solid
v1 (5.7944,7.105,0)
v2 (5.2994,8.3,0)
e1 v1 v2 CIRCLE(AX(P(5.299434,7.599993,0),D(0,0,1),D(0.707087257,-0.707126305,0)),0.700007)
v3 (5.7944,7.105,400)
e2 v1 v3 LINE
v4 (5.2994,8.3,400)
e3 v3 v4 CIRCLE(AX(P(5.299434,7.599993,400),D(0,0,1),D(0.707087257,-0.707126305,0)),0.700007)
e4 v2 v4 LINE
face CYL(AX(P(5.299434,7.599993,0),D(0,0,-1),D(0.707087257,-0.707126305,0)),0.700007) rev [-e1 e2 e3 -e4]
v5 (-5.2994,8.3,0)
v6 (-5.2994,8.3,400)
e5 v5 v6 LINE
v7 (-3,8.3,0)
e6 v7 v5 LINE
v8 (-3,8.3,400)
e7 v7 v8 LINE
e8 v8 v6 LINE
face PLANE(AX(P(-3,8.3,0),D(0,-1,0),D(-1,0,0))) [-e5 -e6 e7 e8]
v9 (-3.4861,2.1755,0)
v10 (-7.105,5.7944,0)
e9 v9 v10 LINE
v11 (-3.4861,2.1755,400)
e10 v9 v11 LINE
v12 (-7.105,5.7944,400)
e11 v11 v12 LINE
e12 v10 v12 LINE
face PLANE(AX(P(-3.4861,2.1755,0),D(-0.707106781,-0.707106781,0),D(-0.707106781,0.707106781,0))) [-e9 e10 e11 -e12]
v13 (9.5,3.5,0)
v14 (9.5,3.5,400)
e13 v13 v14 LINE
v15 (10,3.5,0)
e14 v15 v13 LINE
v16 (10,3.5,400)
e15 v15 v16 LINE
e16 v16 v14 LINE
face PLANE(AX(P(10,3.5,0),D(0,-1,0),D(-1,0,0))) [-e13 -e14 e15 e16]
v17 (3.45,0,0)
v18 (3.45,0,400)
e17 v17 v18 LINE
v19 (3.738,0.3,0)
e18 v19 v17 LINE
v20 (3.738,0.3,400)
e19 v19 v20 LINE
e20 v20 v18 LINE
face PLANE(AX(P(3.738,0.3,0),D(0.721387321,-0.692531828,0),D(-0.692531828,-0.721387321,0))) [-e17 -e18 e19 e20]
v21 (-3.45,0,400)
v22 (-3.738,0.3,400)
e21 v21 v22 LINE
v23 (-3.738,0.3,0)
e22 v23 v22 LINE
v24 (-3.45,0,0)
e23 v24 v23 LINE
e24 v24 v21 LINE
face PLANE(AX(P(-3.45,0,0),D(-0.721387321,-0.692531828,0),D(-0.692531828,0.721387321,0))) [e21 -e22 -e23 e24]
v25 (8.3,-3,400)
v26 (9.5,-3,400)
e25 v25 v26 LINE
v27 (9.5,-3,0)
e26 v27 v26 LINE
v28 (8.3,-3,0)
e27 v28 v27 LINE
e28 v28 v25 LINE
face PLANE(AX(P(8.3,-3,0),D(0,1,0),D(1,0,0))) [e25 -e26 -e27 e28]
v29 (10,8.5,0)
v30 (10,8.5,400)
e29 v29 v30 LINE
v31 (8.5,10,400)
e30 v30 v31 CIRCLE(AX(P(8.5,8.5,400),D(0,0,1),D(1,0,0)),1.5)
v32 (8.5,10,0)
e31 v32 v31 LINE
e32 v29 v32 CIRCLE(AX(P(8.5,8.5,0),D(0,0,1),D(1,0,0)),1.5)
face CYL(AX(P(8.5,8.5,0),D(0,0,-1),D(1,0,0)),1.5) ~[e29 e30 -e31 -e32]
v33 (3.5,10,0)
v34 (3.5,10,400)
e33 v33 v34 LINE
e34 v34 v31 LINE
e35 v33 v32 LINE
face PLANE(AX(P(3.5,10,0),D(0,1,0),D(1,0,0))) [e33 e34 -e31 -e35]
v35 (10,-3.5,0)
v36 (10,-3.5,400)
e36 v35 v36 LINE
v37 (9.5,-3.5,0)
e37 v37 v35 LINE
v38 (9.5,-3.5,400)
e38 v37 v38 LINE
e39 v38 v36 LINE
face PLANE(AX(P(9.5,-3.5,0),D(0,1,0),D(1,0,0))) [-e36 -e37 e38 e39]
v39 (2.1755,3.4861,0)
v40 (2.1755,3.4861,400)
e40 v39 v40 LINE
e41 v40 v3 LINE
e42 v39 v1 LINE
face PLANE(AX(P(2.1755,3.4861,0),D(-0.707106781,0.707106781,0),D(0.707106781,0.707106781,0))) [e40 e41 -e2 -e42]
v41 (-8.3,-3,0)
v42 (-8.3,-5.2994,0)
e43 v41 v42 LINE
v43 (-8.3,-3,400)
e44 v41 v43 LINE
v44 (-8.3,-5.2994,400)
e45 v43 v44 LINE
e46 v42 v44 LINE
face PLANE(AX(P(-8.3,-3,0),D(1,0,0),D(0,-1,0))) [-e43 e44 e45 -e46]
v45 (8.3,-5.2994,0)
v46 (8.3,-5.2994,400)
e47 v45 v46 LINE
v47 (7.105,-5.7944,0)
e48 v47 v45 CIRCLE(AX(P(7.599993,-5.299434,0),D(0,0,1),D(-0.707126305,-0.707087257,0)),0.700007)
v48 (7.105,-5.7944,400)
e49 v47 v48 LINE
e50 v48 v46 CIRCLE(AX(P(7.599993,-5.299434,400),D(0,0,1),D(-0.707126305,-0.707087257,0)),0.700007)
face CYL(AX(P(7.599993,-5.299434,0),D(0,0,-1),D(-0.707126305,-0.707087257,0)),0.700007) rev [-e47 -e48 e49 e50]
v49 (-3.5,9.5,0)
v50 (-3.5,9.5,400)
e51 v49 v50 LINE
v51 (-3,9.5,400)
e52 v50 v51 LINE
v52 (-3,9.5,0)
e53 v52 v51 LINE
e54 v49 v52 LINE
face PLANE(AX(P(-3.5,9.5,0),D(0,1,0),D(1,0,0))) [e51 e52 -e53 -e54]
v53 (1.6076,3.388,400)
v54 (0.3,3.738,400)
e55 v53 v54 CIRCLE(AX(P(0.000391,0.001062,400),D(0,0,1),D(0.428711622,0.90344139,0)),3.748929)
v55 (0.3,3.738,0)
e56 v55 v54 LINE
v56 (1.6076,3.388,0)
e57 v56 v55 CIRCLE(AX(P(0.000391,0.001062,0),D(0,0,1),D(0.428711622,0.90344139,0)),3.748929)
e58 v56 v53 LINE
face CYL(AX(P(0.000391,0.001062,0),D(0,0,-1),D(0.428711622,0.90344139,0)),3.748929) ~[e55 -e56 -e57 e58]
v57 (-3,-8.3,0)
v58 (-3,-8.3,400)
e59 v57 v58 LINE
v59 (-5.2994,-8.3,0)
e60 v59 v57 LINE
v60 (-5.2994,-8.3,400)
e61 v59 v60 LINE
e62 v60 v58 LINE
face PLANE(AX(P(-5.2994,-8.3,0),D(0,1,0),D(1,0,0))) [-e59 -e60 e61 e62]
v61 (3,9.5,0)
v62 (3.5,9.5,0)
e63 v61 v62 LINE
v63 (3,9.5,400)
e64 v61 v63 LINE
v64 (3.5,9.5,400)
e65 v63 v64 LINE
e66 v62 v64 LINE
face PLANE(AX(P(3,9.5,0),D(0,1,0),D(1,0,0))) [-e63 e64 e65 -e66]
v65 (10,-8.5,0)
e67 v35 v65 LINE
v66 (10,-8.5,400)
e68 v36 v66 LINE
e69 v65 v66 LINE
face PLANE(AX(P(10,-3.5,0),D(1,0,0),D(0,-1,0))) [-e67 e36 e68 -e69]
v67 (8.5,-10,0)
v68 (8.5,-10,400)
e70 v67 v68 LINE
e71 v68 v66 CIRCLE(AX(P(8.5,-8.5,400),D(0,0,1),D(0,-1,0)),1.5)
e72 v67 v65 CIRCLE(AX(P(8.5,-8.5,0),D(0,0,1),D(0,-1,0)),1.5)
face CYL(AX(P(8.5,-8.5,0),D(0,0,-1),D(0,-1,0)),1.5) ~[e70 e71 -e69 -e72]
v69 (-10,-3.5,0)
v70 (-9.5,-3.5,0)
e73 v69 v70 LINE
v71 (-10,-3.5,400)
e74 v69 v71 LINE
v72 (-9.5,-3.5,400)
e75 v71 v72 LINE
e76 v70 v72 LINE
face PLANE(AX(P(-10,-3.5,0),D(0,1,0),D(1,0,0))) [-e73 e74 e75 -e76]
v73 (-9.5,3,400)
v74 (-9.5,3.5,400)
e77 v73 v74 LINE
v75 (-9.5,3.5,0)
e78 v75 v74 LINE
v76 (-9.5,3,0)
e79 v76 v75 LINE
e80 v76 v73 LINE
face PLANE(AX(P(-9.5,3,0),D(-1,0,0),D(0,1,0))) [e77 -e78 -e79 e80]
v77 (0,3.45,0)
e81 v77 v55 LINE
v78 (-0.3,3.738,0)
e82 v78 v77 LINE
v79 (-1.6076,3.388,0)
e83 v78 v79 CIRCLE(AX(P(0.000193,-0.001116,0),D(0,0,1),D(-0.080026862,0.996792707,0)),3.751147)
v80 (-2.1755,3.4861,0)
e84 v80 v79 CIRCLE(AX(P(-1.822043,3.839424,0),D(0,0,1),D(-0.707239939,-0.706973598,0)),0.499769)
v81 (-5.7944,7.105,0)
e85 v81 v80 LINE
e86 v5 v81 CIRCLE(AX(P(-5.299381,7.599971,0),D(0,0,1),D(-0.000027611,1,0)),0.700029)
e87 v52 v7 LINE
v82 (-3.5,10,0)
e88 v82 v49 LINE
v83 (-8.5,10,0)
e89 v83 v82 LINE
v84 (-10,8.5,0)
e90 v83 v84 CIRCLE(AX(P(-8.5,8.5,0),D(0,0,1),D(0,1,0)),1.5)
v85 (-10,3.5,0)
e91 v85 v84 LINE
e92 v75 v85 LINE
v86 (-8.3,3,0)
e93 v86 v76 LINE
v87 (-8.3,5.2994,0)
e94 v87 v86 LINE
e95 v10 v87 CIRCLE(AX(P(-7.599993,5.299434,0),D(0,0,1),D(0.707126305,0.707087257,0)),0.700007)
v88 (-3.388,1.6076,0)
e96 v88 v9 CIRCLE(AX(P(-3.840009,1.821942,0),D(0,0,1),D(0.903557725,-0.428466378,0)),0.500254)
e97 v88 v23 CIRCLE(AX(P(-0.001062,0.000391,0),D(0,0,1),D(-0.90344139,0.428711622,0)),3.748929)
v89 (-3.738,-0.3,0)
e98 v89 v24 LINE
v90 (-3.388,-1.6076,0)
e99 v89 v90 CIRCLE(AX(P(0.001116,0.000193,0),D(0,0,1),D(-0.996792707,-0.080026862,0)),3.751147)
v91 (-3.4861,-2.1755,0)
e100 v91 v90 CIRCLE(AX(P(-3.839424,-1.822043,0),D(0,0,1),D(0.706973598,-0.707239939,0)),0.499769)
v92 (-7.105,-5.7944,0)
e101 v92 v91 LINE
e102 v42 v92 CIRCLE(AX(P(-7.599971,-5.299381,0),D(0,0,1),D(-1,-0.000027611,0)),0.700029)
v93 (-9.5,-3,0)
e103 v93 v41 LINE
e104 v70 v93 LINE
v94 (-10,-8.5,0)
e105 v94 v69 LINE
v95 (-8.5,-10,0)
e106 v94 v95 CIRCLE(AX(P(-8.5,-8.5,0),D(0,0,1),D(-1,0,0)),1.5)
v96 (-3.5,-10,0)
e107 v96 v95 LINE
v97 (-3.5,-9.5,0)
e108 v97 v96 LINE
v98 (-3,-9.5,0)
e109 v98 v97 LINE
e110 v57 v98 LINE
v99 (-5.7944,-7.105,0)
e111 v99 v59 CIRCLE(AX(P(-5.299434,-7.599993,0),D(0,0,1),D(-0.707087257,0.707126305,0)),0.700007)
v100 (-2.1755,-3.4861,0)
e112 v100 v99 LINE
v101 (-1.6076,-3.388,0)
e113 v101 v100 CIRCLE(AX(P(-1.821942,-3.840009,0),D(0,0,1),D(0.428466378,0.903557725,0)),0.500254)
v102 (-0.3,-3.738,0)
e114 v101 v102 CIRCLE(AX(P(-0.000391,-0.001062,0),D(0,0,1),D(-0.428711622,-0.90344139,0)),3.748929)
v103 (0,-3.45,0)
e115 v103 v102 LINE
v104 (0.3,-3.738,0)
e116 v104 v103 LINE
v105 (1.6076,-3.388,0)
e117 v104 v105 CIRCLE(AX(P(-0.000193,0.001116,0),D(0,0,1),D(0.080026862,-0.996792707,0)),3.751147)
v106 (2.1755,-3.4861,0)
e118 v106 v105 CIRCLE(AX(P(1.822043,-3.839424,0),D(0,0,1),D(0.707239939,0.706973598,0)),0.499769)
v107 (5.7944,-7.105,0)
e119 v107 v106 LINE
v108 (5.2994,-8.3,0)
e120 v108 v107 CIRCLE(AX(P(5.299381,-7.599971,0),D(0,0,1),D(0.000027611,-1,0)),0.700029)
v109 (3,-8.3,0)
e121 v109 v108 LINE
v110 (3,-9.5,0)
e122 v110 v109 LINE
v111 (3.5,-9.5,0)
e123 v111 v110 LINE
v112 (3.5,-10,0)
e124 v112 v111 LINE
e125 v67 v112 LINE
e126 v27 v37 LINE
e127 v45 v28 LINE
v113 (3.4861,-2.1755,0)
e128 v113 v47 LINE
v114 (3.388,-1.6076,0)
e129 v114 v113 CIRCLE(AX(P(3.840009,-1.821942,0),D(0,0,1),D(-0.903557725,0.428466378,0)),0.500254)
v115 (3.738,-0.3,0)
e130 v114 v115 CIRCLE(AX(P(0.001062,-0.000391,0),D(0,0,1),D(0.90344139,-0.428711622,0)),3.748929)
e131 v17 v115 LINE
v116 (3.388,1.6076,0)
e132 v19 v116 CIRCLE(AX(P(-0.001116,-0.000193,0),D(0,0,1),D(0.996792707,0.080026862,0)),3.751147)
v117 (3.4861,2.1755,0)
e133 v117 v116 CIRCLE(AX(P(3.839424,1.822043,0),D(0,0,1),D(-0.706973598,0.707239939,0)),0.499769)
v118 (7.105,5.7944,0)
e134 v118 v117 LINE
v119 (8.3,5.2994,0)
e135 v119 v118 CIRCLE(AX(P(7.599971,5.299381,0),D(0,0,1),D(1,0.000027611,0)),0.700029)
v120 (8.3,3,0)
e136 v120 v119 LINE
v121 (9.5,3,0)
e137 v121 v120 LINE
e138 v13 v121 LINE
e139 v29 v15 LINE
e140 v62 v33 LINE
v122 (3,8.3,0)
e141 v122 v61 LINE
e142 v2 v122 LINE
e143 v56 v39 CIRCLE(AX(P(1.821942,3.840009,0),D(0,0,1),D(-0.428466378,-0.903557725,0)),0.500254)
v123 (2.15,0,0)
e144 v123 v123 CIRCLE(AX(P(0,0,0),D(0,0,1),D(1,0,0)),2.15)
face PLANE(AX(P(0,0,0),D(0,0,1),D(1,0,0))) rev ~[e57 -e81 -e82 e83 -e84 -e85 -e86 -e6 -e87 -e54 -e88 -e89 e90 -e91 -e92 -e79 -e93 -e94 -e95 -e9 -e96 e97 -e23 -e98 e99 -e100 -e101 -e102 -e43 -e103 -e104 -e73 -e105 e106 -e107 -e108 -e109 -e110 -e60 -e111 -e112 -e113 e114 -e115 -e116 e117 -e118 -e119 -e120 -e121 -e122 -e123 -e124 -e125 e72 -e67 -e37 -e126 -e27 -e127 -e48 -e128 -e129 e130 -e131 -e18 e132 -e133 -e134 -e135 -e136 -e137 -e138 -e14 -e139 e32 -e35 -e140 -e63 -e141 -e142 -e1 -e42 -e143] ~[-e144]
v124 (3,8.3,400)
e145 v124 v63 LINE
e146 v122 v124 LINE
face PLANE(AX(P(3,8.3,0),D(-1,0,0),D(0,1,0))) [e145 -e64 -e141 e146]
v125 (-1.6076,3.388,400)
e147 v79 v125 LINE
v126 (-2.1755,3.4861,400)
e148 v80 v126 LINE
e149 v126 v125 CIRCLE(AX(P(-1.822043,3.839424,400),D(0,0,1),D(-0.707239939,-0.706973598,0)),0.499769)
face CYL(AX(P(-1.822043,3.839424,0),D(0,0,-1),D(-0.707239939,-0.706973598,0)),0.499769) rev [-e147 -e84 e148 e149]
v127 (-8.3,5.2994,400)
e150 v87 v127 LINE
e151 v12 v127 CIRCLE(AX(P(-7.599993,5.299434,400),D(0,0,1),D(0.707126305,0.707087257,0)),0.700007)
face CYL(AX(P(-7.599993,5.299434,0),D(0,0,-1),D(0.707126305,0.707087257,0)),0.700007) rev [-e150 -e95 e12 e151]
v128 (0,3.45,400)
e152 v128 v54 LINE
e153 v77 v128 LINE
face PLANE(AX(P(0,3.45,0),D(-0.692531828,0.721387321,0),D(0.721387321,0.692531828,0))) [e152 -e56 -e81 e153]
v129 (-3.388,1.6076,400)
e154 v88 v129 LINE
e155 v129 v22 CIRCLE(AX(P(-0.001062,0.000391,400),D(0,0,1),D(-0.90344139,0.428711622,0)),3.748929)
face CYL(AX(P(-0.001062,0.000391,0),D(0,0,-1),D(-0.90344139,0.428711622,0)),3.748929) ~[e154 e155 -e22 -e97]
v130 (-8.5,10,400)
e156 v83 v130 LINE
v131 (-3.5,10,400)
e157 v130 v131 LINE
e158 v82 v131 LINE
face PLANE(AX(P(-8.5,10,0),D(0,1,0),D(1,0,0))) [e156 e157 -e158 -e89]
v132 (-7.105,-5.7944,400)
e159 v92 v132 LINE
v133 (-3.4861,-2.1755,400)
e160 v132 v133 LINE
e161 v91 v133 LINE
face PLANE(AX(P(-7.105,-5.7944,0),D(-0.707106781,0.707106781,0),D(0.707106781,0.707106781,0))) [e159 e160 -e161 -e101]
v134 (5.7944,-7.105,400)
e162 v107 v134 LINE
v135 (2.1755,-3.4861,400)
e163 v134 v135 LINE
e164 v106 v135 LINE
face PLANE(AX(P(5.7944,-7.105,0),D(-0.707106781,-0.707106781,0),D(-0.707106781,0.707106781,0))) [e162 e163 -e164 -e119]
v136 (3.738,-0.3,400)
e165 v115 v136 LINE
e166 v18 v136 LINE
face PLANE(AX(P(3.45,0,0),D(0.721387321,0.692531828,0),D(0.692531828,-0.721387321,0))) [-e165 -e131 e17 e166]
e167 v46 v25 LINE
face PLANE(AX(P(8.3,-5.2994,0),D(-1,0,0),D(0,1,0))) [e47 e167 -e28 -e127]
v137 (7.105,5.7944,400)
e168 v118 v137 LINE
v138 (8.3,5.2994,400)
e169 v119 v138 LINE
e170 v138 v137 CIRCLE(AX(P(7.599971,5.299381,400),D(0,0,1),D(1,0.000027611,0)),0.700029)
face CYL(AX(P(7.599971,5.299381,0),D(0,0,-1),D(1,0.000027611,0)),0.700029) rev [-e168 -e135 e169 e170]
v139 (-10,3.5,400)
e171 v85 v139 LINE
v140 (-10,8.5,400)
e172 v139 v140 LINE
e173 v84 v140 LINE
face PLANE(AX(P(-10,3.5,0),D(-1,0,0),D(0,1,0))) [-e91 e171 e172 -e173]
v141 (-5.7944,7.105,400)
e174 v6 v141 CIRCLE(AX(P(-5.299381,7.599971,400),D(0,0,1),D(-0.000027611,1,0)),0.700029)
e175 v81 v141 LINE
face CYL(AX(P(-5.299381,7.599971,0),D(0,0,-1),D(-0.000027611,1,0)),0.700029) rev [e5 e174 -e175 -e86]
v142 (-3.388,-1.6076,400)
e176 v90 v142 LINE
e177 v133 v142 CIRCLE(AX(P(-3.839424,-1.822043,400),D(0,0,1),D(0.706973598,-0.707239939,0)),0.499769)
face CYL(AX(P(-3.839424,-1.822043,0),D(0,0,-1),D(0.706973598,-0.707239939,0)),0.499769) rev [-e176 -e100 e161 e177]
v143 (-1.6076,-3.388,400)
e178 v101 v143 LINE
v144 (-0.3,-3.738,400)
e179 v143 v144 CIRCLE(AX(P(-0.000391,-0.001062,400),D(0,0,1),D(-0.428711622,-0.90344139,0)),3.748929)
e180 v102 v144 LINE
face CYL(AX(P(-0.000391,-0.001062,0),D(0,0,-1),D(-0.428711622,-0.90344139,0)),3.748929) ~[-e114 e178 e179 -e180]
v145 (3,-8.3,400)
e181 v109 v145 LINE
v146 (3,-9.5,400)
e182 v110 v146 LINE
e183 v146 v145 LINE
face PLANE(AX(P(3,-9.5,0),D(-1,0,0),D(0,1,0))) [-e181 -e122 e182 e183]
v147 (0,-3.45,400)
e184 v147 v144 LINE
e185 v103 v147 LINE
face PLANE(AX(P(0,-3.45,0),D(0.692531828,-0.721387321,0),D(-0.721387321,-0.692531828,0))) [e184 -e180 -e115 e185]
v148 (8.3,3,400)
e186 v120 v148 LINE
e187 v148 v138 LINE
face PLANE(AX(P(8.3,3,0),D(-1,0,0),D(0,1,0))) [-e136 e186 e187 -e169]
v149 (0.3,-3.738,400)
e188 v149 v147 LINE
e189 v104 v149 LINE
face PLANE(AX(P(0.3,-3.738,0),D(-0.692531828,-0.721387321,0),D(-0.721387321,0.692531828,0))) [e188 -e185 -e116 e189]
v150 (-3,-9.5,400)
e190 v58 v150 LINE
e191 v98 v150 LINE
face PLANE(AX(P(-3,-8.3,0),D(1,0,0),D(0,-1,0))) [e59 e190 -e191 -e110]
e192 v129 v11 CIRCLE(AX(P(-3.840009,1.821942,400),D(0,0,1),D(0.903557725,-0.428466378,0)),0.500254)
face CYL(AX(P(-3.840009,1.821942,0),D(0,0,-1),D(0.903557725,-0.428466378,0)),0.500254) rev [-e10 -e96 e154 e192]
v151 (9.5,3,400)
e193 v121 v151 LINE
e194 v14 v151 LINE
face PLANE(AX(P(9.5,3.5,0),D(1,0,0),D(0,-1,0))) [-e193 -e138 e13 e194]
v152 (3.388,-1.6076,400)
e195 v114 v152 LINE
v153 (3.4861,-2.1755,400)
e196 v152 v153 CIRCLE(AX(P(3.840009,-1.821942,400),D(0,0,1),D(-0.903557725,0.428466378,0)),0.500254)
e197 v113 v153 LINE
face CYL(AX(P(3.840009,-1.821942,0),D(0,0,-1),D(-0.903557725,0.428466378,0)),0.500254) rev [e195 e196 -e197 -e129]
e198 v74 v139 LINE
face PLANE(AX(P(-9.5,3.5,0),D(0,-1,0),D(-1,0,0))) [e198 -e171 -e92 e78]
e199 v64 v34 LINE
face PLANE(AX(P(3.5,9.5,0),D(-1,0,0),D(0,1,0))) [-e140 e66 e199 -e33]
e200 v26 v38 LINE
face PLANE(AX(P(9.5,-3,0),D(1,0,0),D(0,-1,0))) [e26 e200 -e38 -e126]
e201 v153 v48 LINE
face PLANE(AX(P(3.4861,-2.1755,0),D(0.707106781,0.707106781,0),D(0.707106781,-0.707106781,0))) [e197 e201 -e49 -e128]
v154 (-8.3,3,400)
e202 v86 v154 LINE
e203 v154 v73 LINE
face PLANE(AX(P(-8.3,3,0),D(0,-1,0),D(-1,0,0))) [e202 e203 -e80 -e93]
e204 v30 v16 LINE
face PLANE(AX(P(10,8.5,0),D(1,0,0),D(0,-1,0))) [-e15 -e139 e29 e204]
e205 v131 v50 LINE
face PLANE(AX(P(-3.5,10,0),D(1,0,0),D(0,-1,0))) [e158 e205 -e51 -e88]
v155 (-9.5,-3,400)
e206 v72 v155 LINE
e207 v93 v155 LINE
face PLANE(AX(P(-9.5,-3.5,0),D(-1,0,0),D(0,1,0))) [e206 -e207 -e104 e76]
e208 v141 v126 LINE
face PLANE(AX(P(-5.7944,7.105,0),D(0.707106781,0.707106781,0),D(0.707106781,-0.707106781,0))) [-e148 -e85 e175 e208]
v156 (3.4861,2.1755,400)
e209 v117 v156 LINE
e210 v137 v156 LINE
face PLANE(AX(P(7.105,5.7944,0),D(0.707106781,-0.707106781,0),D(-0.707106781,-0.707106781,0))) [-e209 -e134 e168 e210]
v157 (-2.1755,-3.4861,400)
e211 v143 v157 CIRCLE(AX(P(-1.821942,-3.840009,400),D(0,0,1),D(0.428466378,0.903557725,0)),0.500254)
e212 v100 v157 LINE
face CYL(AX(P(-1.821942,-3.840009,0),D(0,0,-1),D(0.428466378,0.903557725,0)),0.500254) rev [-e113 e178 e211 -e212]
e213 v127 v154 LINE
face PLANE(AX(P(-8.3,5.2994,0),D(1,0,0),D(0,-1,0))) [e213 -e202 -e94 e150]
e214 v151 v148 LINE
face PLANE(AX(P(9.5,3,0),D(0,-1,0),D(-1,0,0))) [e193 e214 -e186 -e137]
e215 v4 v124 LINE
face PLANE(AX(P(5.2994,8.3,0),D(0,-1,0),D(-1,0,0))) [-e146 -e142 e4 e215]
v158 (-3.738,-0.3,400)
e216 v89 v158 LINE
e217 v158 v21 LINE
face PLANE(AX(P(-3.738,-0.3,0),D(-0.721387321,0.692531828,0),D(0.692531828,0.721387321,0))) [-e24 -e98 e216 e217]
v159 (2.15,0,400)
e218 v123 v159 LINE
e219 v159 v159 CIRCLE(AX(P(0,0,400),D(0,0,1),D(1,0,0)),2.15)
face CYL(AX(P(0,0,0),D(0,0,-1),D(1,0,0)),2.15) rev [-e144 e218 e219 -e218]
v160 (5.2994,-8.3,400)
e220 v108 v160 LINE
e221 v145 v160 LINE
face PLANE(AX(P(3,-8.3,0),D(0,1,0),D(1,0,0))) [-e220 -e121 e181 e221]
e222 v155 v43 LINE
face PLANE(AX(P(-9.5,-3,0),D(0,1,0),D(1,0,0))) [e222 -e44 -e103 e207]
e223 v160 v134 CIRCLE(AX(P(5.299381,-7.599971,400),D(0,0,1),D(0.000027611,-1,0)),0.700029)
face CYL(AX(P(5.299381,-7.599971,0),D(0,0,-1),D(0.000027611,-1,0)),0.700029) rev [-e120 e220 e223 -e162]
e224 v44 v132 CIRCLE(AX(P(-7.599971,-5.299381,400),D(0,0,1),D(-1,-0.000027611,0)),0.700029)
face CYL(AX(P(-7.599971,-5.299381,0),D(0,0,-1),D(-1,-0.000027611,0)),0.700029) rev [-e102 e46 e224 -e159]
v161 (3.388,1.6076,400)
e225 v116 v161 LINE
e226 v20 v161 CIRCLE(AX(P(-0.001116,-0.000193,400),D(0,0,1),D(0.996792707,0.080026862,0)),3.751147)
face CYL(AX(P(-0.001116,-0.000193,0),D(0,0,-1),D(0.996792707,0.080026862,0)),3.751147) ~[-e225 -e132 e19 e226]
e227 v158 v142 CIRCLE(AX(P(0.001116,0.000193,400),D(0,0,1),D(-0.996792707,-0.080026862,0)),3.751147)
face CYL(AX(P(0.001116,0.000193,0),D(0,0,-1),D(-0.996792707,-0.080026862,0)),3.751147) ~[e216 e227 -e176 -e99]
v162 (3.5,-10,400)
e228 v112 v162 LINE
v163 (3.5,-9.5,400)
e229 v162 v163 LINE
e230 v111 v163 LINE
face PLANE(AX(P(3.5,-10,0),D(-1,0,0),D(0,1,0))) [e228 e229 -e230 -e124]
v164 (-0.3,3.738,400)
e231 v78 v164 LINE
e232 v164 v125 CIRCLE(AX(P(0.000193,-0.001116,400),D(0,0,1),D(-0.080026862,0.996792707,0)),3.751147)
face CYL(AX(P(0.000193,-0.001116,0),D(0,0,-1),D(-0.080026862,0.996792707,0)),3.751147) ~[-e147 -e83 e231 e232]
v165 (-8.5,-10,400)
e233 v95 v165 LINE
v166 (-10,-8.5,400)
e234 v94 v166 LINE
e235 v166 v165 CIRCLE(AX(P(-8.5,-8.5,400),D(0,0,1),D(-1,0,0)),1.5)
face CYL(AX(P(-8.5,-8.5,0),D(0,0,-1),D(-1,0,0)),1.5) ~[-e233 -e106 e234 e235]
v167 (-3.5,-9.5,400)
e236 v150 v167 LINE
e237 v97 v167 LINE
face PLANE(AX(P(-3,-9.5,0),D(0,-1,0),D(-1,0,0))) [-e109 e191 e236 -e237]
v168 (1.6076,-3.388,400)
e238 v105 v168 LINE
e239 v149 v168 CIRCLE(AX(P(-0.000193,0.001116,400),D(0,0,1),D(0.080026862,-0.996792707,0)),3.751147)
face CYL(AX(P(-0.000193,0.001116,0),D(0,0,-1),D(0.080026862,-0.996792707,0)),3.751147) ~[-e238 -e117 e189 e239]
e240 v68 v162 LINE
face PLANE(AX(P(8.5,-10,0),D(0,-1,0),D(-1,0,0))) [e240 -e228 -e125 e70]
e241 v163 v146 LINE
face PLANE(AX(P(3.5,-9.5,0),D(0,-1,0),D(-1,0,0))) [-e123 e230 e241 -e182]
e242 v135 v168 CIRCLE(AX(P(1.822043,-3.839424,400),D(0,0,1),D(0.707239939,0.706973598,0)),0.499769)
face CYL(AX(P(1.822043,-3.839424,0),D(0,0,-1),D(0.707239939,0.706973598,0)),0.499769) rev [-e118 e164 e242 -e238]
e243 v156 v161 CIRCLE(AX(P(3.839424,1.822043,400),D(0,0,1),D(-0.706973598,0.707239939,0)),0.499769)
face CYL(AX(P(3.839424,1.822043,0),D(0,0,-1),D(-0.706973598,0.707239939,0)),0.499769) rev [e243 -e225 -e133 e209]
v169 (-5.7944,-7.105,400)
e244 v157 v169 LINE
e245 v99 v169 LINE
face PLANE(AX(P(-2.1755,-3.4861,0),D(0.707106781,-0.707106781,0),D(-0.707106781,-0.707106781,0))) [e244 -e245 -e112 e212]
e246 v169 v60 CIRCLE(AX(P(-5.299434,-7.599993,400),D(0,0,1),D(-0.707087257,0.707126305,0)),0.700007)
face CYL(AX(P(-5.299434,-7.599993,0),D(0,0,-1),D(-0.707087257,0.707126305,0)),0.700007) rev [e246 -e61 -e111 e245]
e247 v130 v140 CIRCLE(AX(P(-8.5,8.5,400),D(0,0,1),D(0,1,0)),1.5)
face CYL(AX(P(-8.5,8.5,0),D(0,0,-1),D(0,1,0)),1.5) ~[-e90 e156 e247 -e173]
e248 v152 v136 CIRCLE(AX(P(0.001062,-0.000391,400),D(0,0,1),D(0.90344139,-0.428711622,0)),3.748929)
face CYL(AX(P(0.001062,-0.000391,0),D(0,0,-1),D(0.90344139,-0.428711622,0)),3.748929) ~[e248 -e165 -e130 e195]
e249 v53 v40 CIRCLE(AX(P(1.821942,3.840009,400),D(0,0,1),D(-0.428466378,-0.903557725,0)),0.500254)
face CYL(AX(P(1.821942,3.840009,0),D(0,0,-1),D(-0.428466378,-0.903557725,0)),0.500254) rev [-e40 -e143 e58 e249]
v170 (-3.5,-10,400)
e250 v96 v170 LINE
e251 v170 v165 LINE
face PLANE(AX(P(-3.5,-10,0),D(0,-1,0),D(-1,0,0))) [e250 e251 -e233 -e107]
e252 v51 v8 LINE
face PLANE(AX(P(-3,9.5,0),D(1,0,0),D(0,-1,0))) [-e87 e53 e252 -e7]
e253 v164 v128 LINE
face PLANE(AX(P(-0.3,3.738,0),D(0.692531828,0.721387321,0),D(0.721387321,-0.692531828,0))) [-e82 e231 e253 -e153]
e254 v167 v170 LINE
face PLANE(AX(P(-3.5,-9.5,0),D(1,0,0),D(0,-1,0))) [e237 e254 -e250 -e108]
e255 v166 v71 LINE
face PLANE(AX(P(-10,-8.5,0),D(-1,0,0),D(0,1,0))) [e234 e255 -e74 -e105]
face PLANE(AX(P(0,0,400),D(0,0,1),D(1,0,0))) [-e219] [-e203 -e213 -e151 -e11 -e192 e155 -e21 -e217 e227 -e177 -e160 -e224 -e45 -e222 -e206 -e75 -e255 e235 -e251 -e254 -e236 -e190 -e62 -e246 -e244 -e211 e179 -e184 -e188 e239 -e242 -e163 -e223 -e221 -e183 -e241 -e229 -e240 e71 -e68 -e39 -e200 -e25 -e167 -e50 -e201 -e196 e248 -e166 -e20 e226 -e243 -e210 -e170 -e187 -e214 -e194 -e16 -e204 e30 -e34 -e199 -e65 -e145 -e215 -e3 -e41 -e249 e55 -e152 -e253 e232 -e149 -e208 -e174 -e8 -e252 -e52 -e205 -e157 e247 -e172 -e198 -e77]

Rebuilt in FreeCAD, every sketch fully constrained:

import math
import FreeCAD as App
import Part
import Sketcher

V = App.Vector
Q = App.Units.Quantity

doc = App.newDocument("Part")
params = doc.addObject("Spreadsheet::Sheet", "Params")
for row, (alias, value) in enumerate([
    ("sketch1_diameter", "4.3 mm"),
    ("sketch1_radius", "0.7 mm"),
    ("sketch1_radius2", "0.5 mm"),
    ("sketch1_radius3", "0.5 mm"),
    ("sketch1_radius4", "0.7 mm"),
    ("pad1_length", "400 mm"),
], start=1):
    params.set(f"A{row}", alias)
    params.set(f"B{row}", "=" + value)
    params.setAlias(f"B{row}", alias)

body = doc.addObject("PartDesign::Body", "Body")

sketch1 = body.newObject("Sketcher::SketchObject", "Sketch")
sketch1.AttachmentSupport = (doc.getObject("XY_Plane"), [""])
sketch1.MapMode = "FlatFace"
sketch1.addGeometry([
    Part.LineSegment(V(-3.5, -10, 0), V(-3.5, -9.5, 0)),
    Part.LineSegment(V(-3.5, -9.5, 0), V(-3, -9.5, 0)),
    Part.LineSegment(V(-3, -9.5, 0), V(-3, -8.3, 0)),
    Part.LineSegment(V(-3, -8.3, 0), V(-5.2994, -8.3, 0)),
    Part.ArcOfCircle(Part.Circle(V(-5.2994, -7.6, 0), V(0, 0, 1), 0.700036), math.radians(135), math.radians(270)),
    Part.LineSegment(V(-5.7944, -7.105, 0), V(-2.1755, -3.4861, 0)),
    Part.ArcOfCircle(Part.Circle(V(-1.8219, -3.8397, 0), V(0, 0, 1), 0.499957), math.radians(64.618937), math.radians(135)),
    Part.ArcOfCircle(Part.Circle(V(-0.000391, -0.001062, 0), V(0, 0, 1), 3.748929), math.radians(-115.385824), math.radians(-94.583891)),
    Part.LineSegment(V(-0.3, -3.738, 0), V(0, -3.45, 0)),
    Part.LineSegment(V(0, -3.45, 0), V(0.3, -3.738, 0)),
    Part.ArcOfCircle(Part.Circle(V(-0.000193, 0.001116, 0), V(0, 0, 1), 3.751147), math.radians(-85.40989), math.radians(-64.620395)),
    Part.ArcOfCircle(Part.Circle(V(1.8219, -3.8397, 0), V(0, 0, 1), 0.500066), math.radians(45), math.radians(115.381063)),
    Part.LineSegment(V(2.1755, -3.4861, 0), V(5.7944, -7.105, 0)),
    Part.ArcOfCircle(Part.Circle(V(5.2994, -7.6, 0), V(0, 0, 1), 0.7), math.radians(-90), math.radians(45)),
    Part.LineSegment(V(5.2994, -8.3, 0), V(3, -8.3, 0)),
    Part.LineSegment(V(3, -8.3, 0), V(3, -9.5, 0)),
    Part.LineSegment(V(3, -9.5, 0), V(3.5, -9.5, 0)),
    Part.LineSegment(V(3.5, -9.5, 0), V(3.5, -10, 0)),
    Part.LineSegment(V(3.5, -10, 0), V(8.5, -10, 0)),
    Part.ArcOfCircle(Part.Circle(V(8.5, -8.5, 0), V(0, 0, 1), 1.5), math.radians(-90), math.radians(0)),
    Part.LineSegment(V(10, -8.5, 0), V(10, -3.5, 0)),
    Part.LineSegment(V(10, -3.5, 0), V(9.5, -3.5, 0)),
    Part.LineSegment(V(9.5, -3.5, 0), V(9.5, -3, 0)),
    Part.LineSegment(V(9.5, -3, 0), V(8.3, -3, 0)),
    Part.LineSegment(V(8.3, -3, 0), V(8.3, -5.2994, 0)),
    Part.ArcOfCircle(Part.Circle(V(7.6, -5.2994, 0), V(0, 0, 1), 0.700036), math.radians(-135), math.radians(0)),
    Part.LineSegment(V(7.105, -5.7944, 0), V(3.4861, -2.1755, 0)),
    Part.ArcOfCircle(Part.Circle(V(3.8397, -1.8219, 0), V(0, 0, 1), 0.499957), math.radians(154.618937), math.radians(225)),
    Part.ArcOfCircle(Part.Circle(V(0.001062, -0.000391, 0), V(0, 0, 1), 3.748929), math.radians(-25.385824), math.radians(-4.583891)),
    Part.LineSegment(V(3.738, -0.3, 0), V(3.45, 0, 0)),
    Part.LineSegment(V(3.45, 0, 0), V(3.738, 0.3, 0)),
    Part.ArcOfCircle(Part.Circle(V(-0.001116, -0.000193, 0), V(0, 0, 1), 3.751147), math.radians(4.59011), math.radians(25.379605)),
    Part.ArcOfCircle(Part.Circle(V(3.8397, 1.8219, 0), V(0, 0, 1), 0.500066), math.radians(135), math.radians(205.381063)),
    Part.LineSegment(V(3.4861, 2.1755, 0), V(7.105, 5.7944, 0)),
    Part.ArcOfCircle(Part.Circle(V(7.6, 5.2994, 0), V(0, 0, 1), 0.7), math.radians(0), math.radians(135)),
    Part.LineSegment(V(8.3, 5.2994, 0), V(8.3, 3, 0)),
    Part.LineSegment(V(8.3, 3, 0), V(9.5, 3, 0)),
    Part.LineSegment(V(9.5, 3, 0), V(9.5, 3.5, 0)),
    Part.LineSegment(V(9.5, 3.5, 0), V(10, 3.5, 0)),
    Part.LineSegment(V(10, 3.5, 0), V(10, 8.5, 0)),
    Part.ArcOfCircle(Part.Circle(V(8.5, 8.5, 0), V(0, 0, 1), 1.5), math.radians(0), math.radians(90)),
    Part.LineSegment(V(8.5, 10, 0), V(3.5, 10, 0)),
    Part.LineSegment(V(3.5, 10, 0), V(3.5, 9.5, 0)),
    Part.LineSegment(V(3.5, 9.5, 0), V(3, 9.5, 0)),
    Part.LineSegment(V(3, 9.5, 0), V(3, 8.3, 0)),
    Part.LineSegment(V(3, 8.3, 0), V(5.2994, 8.3, 0)),
    Part.ArcOfCircle(Part.Circle(V(5.2994, 7.6, 0), V(0, 0, 1), 0.700036), math.radians(-45), math.radians(90)),
    Part.LineSegment(V(5.7944, 7.105, 0), V(2.1755, 3.4861, 0)),
    Part.ArcOfCircle(Part.Circle(V(1.8219, 3.8397, 0), V(0, 0, 1), 0.499957), math.radians(-115.381063), math.radians(-45)),
    Part.ArcOfCircle(Part.Circle(V(0.000391, 0.001062, 0), V(0, 0, 1), 3.748929), math.radians(64.614176), math.radians(85.416109)),
    Part.LineSegment(V(0.3, 3.738, 0), V(0, 3.45, 0)),
    Part.LineSegment(V(0, 3.45, 0), V(-0.3, 3.738, 0)),
    Part.ArcOfCircle(Part.Circle(V(0.000193, -0.001116, 0), V(0, 0, 1), 3.751147), math.radians(94.59011), math.radians(115.379605)),
    Part.ArcOfCircle(Part.Circle(V(-1.8219, 3.8397, 0), V(0, 0, 1), 0.500066), math.radians(-135), math.radians(-64.618937)),
    Part.LineSegment(V(-2.1755, 3.4861, 0), V(-5.7944, 7.105, 0)),
    Part.ArcOfCircle(Part.Circle(V(-5.2994, 7.6, 0), V(0, 0, 1), 0.7), math.radians(90), math.radians(225)),
    Part.LineSegment(V(-5.2994, 8.3, 0), V(-3, 8.3, 0)),
    Part.LineSegment(V(-3, 8.3, 0), V(-3, 9.5, 0)),
    Part.LineSegment(V(-3, 9.5, 0), V(-3.5, 9.5, 0)),
    Part.LineSegment(V(-3.5, 9.5, 0), V(-3.5, 10, 0)),
    Part.LineSegment(V(-3.5, 10, 0), V(-8.5, 10, 0)),
    Part.ArcOfCircle(Part.Circle(V(-8.5, 8.5, 0), V(0, 0, 1), 1.5), math.radians(90), math.radians(180)),
    Part.LineSegment(V(-10, 8.5, 0), V(-10, 3.5, 0)),
    Part.LineSegment(V(-10, 3.5, 0), V(-9.5, 3.5, 0)),
    Part.LineSegment(V(-9.5, 3.5, 0), V(-9.5, 3, 0)),
    Part.LineSegment(V(-9.5, 3, 0), V(-8.3, 3, 0)),
    Part.LineSegment(V(-8.3, 3, 0), V(-8.3, 5.2994, 0)),
    Part.ArcOfCircle(Part.Circle(V(-7.6, 5.2994, 0), V(0, 0, 1), 0.700036), math.radians(45), math.radians(180)),
    Part.LineSegment(V(-7.105, 5.7944, 0), V(-3.4861, 2.1755, 0)),
    Part.ArcOfCircle(Part.Circle(V(-3.8397, 1.8219, 0), V(0, 0, 1), 0.499957), math.radians(-25.381063), math.radians(45)),
    Part.ArcOfCircle(Part.Circle(V(-0.001062, 0.000391, 0), V(0, 0, 1), 3.748929), math.radians(154.614176), math.radians(175.416109)),
    Part.LineSegment(V(-3.738, 0.3, 0), V(-3.45, 0, 0)),
    Part.LineSegment(V(-3.45, 0, 0), V(-3.738, -0.3, 0)),
    Part.ArcOfCircle(Part.Circle(V(0.001116, 0.000193, 0), V(0, 0, 1), 3.751147), math.radians(-175.40989), math.radians(-154.620395)),
    Part.ArcOfCircle(Part.Circle(V(-3.8397, -1.8219, 0), V(0, 0, 1), 0.500066), math.radians(-45), math.radians(25.381063)),
    Part.LineSegment(V(-3.4861, -2.1755, 0), V(-7.105, -5.7944, 0)),
    Part.ArcOfCircle(Part.Circle(V(-7.6, -5.2994, 0), V(0, 0, 1), 0.7), math.radians(180), math.radians(315)),
    Part.LineSegment(V(-8.3, -5.2994, 0), V(-8.3, -3, 0)),
    Part.LineSegment(V(-8.3, -3, 0), V(-9.5, -3, 0)),
    Part.LineSegment(V(-9.5, -3, 0), V(-9.5, -3.5, 0)),
    Part.LineSegment(V(-9.5, -3.5, 0), V(-10, -3.5, 0)),
    Part.LineSegment(V(-10, -3.5, 0), V(-10, -8.5, 0)),
    Part.ArcOfCircle(Part.Circle(V(-8.5, -8.5, 0), V(0, 0, 1), 1.5), math.radians(180), math.radians(270)),
    Part.LineSegment(V(-8.5, -10, 0), V(-3.5, -10, 0)),
    Part.Circle(V(0, 0, 0), V(0, 0, 1), 2.15),
], False)
sketch1.addConstraint([
    Sketcher.Constraint("Coincident", 0, 2, 1, 1),
    Sketcher.Constraint("Coincident", 1, 2, 2, 1),
    Sketcher.Constraint("Coincident", 2, 2, 3, 1),
    Sketcher.Constraint("Coincident", 3, 2, 4, 2),
    Sketcher.Constraint("Coincident", 4, 1, 5, 1),
    Sketcher.Constraint("Coincident", 5, 2, 6, 2),
    Sketcher.Constraint("Coincident", 6, 1, 7, 1),
    Sketcher.Constraint("Coincident", 7, 2, 8, 1),
    Sketcher.Constraint("Coincident", 8, 2, 9, 1),
    Sketcher.Constraint("Coincident", 9, 2, 10, 1),
    Sketcher.Constraint("Coincident", 10, 2, 11, 2),
    Sketcher.Constraint("Coincident", 11, 1, 12, 1),
    Sketcher.Constraint("Coincident", 12, 2, 13, 2),
    Sketcher.Constraint("Coincident", 13, 1, 14, 1),
    Sketcher.Constraint("Coincident", 14, 2, 15, 1),
    Sketcher.Constraint("Coincident", 15, 2, 16, 1),
    Sketcher.Constraint("Coincident", 16, 2, 17, 1),
    Sketcher.Constraint("Coincident", 17, 2, 18, 1),
    Sketcher.Constraint("Coincident", 18, 2, 19, 1),
    Sketcher.Constraint("Coincident", 19, 2, 20, 1),
    Sketcher.Constraint("Coincident", 20, 2, 21, 1),
    Sketcher.Constraint("Coincident", 21, 2, 22, 1),
    Sketcher.Constraint("Coincident", 22, 2, 23, 1),
    Sketcher.Constraint("Coincident", 23, 2, 24, 1),
    Sketcher.Constraint("Coincident", 24, 2, 25, 2),
    Sketcher.Constraint("Coincident", 25, 1, 26, 1),
    Sketcher.Constraint("Coincident", 26, 2, 27, 2),
    Sketcher.Constraint("Coincident", 27, 1, 28, 1),
    Sketcher.Constraint("Coincident", 28, 2, 29, 1),
    Sketcher.Constraint("Coincident", 29, 2, 30, 1),
    Sketcher.Constraint("Coincident", 30, 2, 31, 1),
    Sketcher.Constraint("Coincident", 31, 2, 32, 2),
    Sketcher.Constraint("Coincident", 32, 1, 33, 1),
    Sketcher.Constraint("Coincident", 33, 2, 34, 2),
    Sketcher.Constraint("Coincident", 34, 1, 35, 1),
    Sketcher.Constraint("Coincident", 35, 2, 36, 1),
    Sketcher.Constraint("Coincident", 36, 2, 37, 1),
    Sketcher.Constraint("Coincident", 37, 2, 38, 1),
    Sketcher.Constraint("Coincident", 38, 2, 39, 1),
    Sketcher.Constraint("Coincident", 39, 2, 40, 1),
    Sketcher.Constraint("Coincident", 40, 2, 41, 1),
    Sketcher.Constraint("Coincident", 41, 2, 42, 1),
    Sketcher.Constraint("Coincident", 42, 2, 43, 1),
    Sketcher.Constraint("Coincident", 43, 2, 44, 1),
    Sketcher.Constraint("Coincident", 44, 2, 45, 1),
    Sketcher.Constraint("Coincident", 45, 2, 46, 2),
    Sketcher.Constraint("Coincident", 46, 1, 47, 1),
    Sketcher.Constraint("Coincident", 47, 2, 48, 2),
    Sketcher.Constraint("Coincident", 48, 1, 49, 1),
    Sketcher.Constraint("Coincident", 49, 2, 50, 1),
    Sketcher.Constraint("Coincident", 50, 2, 51, 1),
    Sketcher.Constraint("Coincident", 51, 2, 52, 1),
    Sketcher.Constraint("Coincident", 52, 2, 53, 2),
    Sketcher.Constraint("Coincident", 53, 1, 54, 1),
    Sketcher.Constraint("Coincident", 54, 2, 55, 2),
    Sketcher.Constraint("Coincident", 55, 1, 56, 1),
    Sketcher.Constraint("Coincident", 56, 2, 57, 1),
    Sketcher.Constraint("Coincident", 57, 2, 58, 1),
    Sketcher.Constraint("Coincident", 58, 2, 59, 1),
    Sketcher.Constraint("Coincident", 59, 2, 60, 1),
    Sketcher.Constraint("Coincident", 60, 2, 61, 1),
    Sketcher.Constraint("Coincident", 61, 2, 62, 1),
    Sketcher.Constraint("Coincident", 62, 2, 63, 1),
    Sketcher.Constraint("Coincident", 63, 2, 64, 1),
    Sketcher.Constraint("Coincident", 64, 2, 65, 1),
    Sketcher.Constraint("Coincident", 65, 2, 66, 1),
    Sketcher.Constraint("Coincident", 66, 2, 67, 2),
    Sketcher.Constraint("Coincident", 67, 1, 68, 1),
    Sketcher.Constraint("Coincident", 68, 2, 69, 2),
    Sketcher.Constraint("Coincident", 69, 1, 70, 1),
    Sketcher.Constraint("Coincident", 70, 2, 71, 1),
    Sketcher.Constraint("Coincident", 71, 2, 72, 1),
    Sketcher.Constraint("Coincident", 72, 2, 73, 1),
    Sketcher.Constraint("Coincident", 73, 2, 74, 2),
    Sketcher.Constraint("Coincident", 74, 1, 75, 1),
    Sketcher.Constraint("Coincident", 75, 2, 76, 2),
    Sketcher.Constraint("Coincident", 76, 1, 77, 1),
    Sketcher.Constraint("Coincident", 77, 2, 78, 1),
    Sketcher.Constraint("Coincident", 78, 2, 79, 1),
    Sketcher.Constraint("Coincident", 79, 2, 80, 1),
    Sketcher.Constraint("Coincident", 80, 2, 81, 1),
    Sketcher.Constraint("Coincident", 81, 2, 82, 1),
    Sketcher.Constraint("Coincident", 82, 2, 83, 1),
    Sketcher.Constraint("Coincident", 83, 2, 0, 1),
    Sketcher.Constraint("Vertical", 0),
    Sketcher.Constraint("Horizontal", 1),
    Sketcher.Constraint("Vertical", 2),
    Sketcher.Constraint("Horizontal", 3),
    Sketcher.Constraint("Horizontal", 14),
    Sketcher.Constraint("Vertical", 15),
    Sketcher.Constraint("Horizontal", 16),
    Sketcher.Constraint("Vertical", 17),
    Sketcher.Constraint("Horizontal", 18),
    Sketcher.Constraint("Vertical", 20),
    Sketcher.Constraint("Horizontal", 21),
    Sketcher.Constraint("Vertical", 22),
    Sketcher.Constraint("Horizontal", 23),
    Sketcher.Constraint("Vertical", 24),
    Sketcher.Constraint("Vertical", 35),
    Sketcher.Constraint("Horizontal", 36),
    Sketcher.Constraint("Vertical", 37),
    Sketcher.Constraint("Horizontal", 38),
    Sketcher.Constraint("Vertical", 39),
    Sketcher.Constraint("Horizontal", 41),
    Sketcher.Constraint("Vertical", 42),
    Sketcher.Constraint("Horizontal", 43),
    Sketcher.Constraint("Vertical", 44),
    Sketcher.Constraint("Horizontal", 45),
    Sketcher.Constraint("Horizontal", 56),
    Sketcher.Constraint("Vertical", 57),
    Sketcher.Constraint("Horizontal", 58),
    Sketcher.Constraint("Vertical", 59),
    Sketcher.Constraint("Horizontal", 60),
    Sketcher.Constraint("Vertical", 62),
    Sketcher.Constraint("Horizontal", 63),
    Sketcher.Constraint("Vertical", 64),
    Sketcher.Constraint("Horizontal", 65),
    Sketcher.Constraint("Vertical", 66),
    Sketcher.Constraint("Vertical", 77),
    Sketcher.Constraint("Horizontal", 78),
    Sketcher.Constraint("Vertical", 79),
    Sketcher.Constraint("Horizontal", 80),
    Sketcher.Constraint("Vertical", 81),
    Sketcher.Constraint("Horizontal", 83),
    Sketcher.Constraint("Coincident", 84, 3, -1, 1),
    Sketcher.Constraint("PointOnObject", 10, 3, -2),
    Sketcher.Constraint("PointOnObject", 31, 3, -1),
    Sketcher.Constraint("PointOnObject", 52, 3, -2),
    Sketcher.Constraint("PointOnObject", 73, 3, -1),
    Sketcher.Constraint("PointOnObject", 8, 2, -2),
    Sketcher.Constraint("PointOnObject", 29, 2, -1),
    Sketcher.Constraint("PointOnObject", 50, 2, -2),
    Sketcher.Constraint("PointOnObject", 71, 2, -1),
    Sketcher.Constraint("Diameter", 84, Q("4.3 mm")),
    Sketcher.Constraint("Radius", 4, Q("0.7 mm")),
    Sketcher.Constraint("Radius", 6, Q("0.5 mm")),
    Sketcher.Constraint("Radius", 11, Q("0.5 mm")),
    Sketcher.Constraint("Radius", 13, Q("0.7 mm")),
    Sketcher.Constraint("Radius", 19, Q("1.5 mm")),
    Sketcher.Constraint("Radius", 25, Q("0.7 mm")),
    Sketcher.Constraint("Radius", 27, Q("0.5 mm")),
    Sketcher.Constraint("Radius", 32, Q("0.5 mm")),
    Sketcher.Constraint("Radius", 34, Q("0.7 mm")),
    Sketcher.Constraint("Radius", 40, Q("1.5 mm")),
    Sketcher.Constraint("Radius", 46, Q("0.7 mm")),
    Sketcher.Constraint("Radius", 48, Q("0.5 mm")),
    Sketcher.Constraint("Radius", 53, Q("0.5 mm")),
    Sketcher.Constraint("Radius", 55, Q("0.7 mm")),
    Sketcher.Constraint("Radius", 61, Q("1.5 mm")),
    Sketcher.Constraint("Radius", 67, Q("0.7 mm")),
    Sketcher.Constraint("Radius", 69, Q("0.5 mm")),
    Sketcher.Constraint("Radius", 74, Q("0.5 mm")),
    Sketcher.Constraint("Radius", 76, Q("0.7 mm")),
    Sketcher.Constraint("Radius", 82, Q("1.5 mm")),
    Sketcher.Constraint("DistanceX", 18, 1, 18, 2, Q("5 mm")),
    Sketcher.Constraint("DistanceX", 41, 2, 41, 1, Q("5 mm")),
    Sketcher.Constraint("DistanceX", 60, 2, 60, 1, Q("5 mm")),
    Sketcher.Constraint("DistanceX", 83, 1, 83, 2, Q("5 mm")),
    Sketcher.Constraint("DistanceY", 20, 1, 20, 2, Q("5 mm")),
    Sketcher.Constraint("DistanceY", 39, 1, 39, 2, Q("5 mm")),
    Sketcher.Constraint("DistanceY", 62, 2, 62, 1, Q("5 mm")),
    Sketcher.Constraint("DistanceY", 81, 2, 81, 1, Q("5 mm")),
    Sketcher.Constraint("DistanceX", 1, 1, 1, 2, Q("0.5 mm")),
    Sketcher.Constraint("DistanceX", 16, 1, 16, 2, Q("0.5 mm")),
    Sketcher.Constraint("DistanceX", 21, 2, 21, 1, Q("0.5 mm")),
    Sketcher.Constraint("DistanceX", 23, 2, 23, 1, Q("1.2 mm")),
    Sketcher.Constraint("DistanceX", 36, 1, 36, 2, Q("1.2 mm")),
    Sketcher.Constraint("DistanceX", 38, 1, 38, 2, Q("0.5 mm")),
    Sketcher.Constraint("DistanceX", 43, 2, 43, 1, Q("0.5 mm")),
    Sketcher.Constraint("DistanceX", 58, 2, 58, 1, Q("0.5 mm")),
    Sketcher.Constraint("DistanceX", 63, 1, 63, 2, Q("0.5 mm")),
    Sketcher.Constraint("DistanceX", 65, 1, 65, 2, Q("1.2 mm")),
    Sketcher.Constraint("DistanceX", 78, 2, 78, 1, Q("1.2 mm")),
    Sketcher.Constraint("DistanceX", 80, 2, 80, 1, Q("0.5 mm")),
    Sketcher.Constraint("DistanceY", 0, 1, 0, 2, Q("0.5 mm")),
    Sketcher.Constraint("DistanceY", 2, 1, 2, 2, Q("1.2 mm")),
    Sketcher.Constraint("DistanceY", 15, 2, 15, 1, Q("1.2 mm")),
    Sketcher.Constraint("DistanceY", 17, 2, 17, 1, Q("0.5 mm")),
    Sketcher.Constraint("DistanceY", 22, 1, 22, 2, Q("0.5 mm")),
    Sketcher.Constraint("DistanceY", 37, 1, 37, 2, Q("0.5 mm")),
    Sketcher.Constraint("DistanceY", 42, 2, 42, 1, Q("0.5 mm")),
    Sketcher.Constraint("DistanceY", 44, 2, 44, 1, Q("1.2 mm")),
    Sketcher.Constraint("DistanceY", 57, 1, 57, 2, Q("1.2 mm")),
    Sketcher.Constraint("DistanceY", 59, 1, 59, 2, Q("0.5 mm")),
    Sketcher.Constraint("DistanceY", 64, 2, 64, 1, Q("0.5 mm")),
    Sketcher.Constraint("DistanceY", 79, 2, 79, 1, Q("0.5 mm")),
    Sketcher.Constraint("DistanceX", 1, 2, -1, 1, Q("3 mm")),
    Sketcher.Constraint("DistanceX", -1, 1, 14, 2, Q("3 mm")),
    Sketcher.Constraint("DistanceY", 17, 2, -1, 1, Q("10 mm")),
    Sketcher.Constraint("DistanceX", -1, 1, 19, 2, Q("10 mm")),
    Sketcher.Constraint("DistanceY", 22, 2, -1, 1, Q("3 mm")),
    Sketcher.Constraint("DistanceY", -1, 1, 35, 2, Q("3 mm")),
    Sketcher.Constraint("DistanceX", -1, 1, 38, 2, Q("10 mm")),
    Sketcher.Constraint("DistanceY", -1, 1, 40, 2, Q("10 mm")),
    Sketcher.Constraint("DistanceX", -1, 1, 43, 2, Q("3 mm")),
    Sketcher.Constraint("DistanceX", 56, 2, -1, 1, Q("3 mm")),
    Sketcher.Constraint("DistanceY", -1, 1, 59, 2, Q("10 mm")),
    Sketcher.Constraint("DistanceX", 61, 2, -1, 1, Q("10 mm")),
    Sketcher.Constraint("DistanceY", -1, 1, 64, 2, Q("3 mm")),
    Sketcher.Constraint("DistanceY", 77, 2, -1, 1, Q("3 mm")),
    Sketcher.Constraint("DistanceX", 80, 2, -1, 1, Q("10 mm")),
    Sketcher.Constraint("DistanceY", 82, 2, -1, 1, Q("10 mm")),
    Sketcher.Constraint("Radius", 7, Q("3.749 mm")),
    Sketcher.Constraint("Radius", 28, Q("3.749 mm")),
    Sketcher.Constraint("Radius", 49, Q("3.749 mm")),
    Sketcher.Constraint("Radius", 70, Q("3.749 mm")),
    Sketcher.Constraint("DistanceX", 7, 2, -1, 1, Q("0.3 mm")),
    Sketcher.Constraint("DistanceX", -1, 1, 9, 2, Q("0.3 mm")),
    Sketcher.Constraint("DistanceY", 28, 2, -1, 1, Q("0.3 mm")),
    Sketcher.Constraint("DistanceY", -1, 1, 30, 2, Q("0.3 mm")),
    Sketcher.Constraint("DistanceX", -1, 1, 49, 2, Q("0.3 mm")),
    Sketcher.Constraint("DistanceX", 51, 2, -1, 1, Q("0.3 mm")),
    Sketcher.Constraint("DistanceY", -1, 1, 70, 2, Q("0.3 mm")),
    Sketcher.Constraint("DistanceY", 72, 2, -1, 1, Q("0.3 mm")),
    Sketcher.Constraint("Radius", 10, Q("3.7511 mm")),
    Sketcher.Constraint("Radius", 31, Q("3.7511 mm")),
    Sketcher.Constraint("Radius", 52, Q("3.7511 mm")),
    Sketcher.Constraint("Radius", 73, Q("3.7511 mm")),
    Sketcher.Constraint("DistanceY", 8, 2, -1, 1, Q("3.45 mm")),
    Sketcher.Constraint("DistanceX", -1, 1, 29, 2, Q("3.45 mm")),
    Sketcher.Constraint("DistanceY", -1, 1, 50, 2, Q("3.45 mm")),
    Sketcher.Constraint("DistanceX", 71, 2, -1, 1, Q("3.45 mm")),
    Sketcher.Constraint("Distance", 5, Q("5.118 mm")),
    Sketcher.Constraint("Distance", 12, Q("5.118 mm")),
    Sketcher.Constraint("Distance", 26, Q("5.118 mm")),
    Sketcher.Constraint("Distance", 33, Q("5.118 mm")),
    Sketcher.Constraint("Distance", 47, Q("5.118 mm")),
    Sketcher.Constraint("Distance", 54, Q("5.118 mm")),
    Sketcher.Constraint("Distance", 68, Q("5.118 mm")),
    Sketcher.Constraint("Distance", 75, Q("5.118 mm")),
    Sketcher.Constraint("DistanceX", 3, 2, 3, 1, Q("2.2994 mm")),
    Sketcher.Constraint("DistanceX", 14, 2, 14, 1, Q("2.2994 mm")),
    Sketcher.Constraint("DistanceX", 45, 1, 45, 2, Q("2.2994 mm")),
    Sketcher.Constraint("DistanceX", 56, 1, 56, 2, Q("2.2994 mm")),
    Sketcher.Constraint("DistanceY", 24, 2, 24, 1, Q("2.2994 mm")),
    Sketcher.Constraint("DistanceY", 35, 2, 35, 1, Q("2.2994 mm")),
    Sketcher.Constraint("DistanceY", 66, 1, 66, 2, Q("2.2994 mm")),
    Sketcher.Constraint("DistanceY", 77, 1, 77, 2, Q("2.2994 mm")),
    Sketcher.Constraint("DistanceX", 6, 3, -1, 1, Q("1.822 mm")),
    Sketcher.Constraint("DistanceY", 7, 3, -1, 1, Q("0.001 mm")),
    Sketcher.Constraint("DistanceY", -1, 1, 10, 3, Q("0.001 mm")),
    Sketcher.Constraint("DistanceX", -1, 1, 11, 3, Q("1.822 mm")),
    Sketcher.Constraint("DistanceY", 27, 3, -1, 1, Q("1.822 mm")),
    Sketcher.Constraint("DistanceX", -1, 1, 28, 3, Q("0.001 mm")),
    Sketcher.Constraint("DistanceX", 31, 3, -1, 1, Q("0.001 mm")),
    Sketcher.Constraint("DistanceY", -1, 1, 32, 3, Q("1.822 mm")),
    Sketcher.Constraint("DistanceX", -1, 1, 48, 3, Q("1.822 mm")),
    Sketcher.Constraint("DistanceY", -1, 1, 49, 3, Q("0.001 mm")),
    Sketcher.Constraint("DistanceY", 52, 3, -1, 1, Q("0.001 mm")),
    Sketcher.Constraint("DistanceX", 53, 3, -1, 1, Q("1.822 mm")),
    Sketcher.Constraint("DistanceY", -1, 1, 69, 3, Q("1.822 mm")),
    Sketcher.Constraint("DistanceX", 70, 3, -1, 1, Q("0.001 mm")),
    Sketcher.Constraint("DistanceX", -1, 1, 73, 3, Q("0.001 mm")),
    Sketcher.Constraint("DistanceY", 74, 3, -1, 1, Q("1.822 mm")),
    Sketcher.Constraint("DistanceY", 4, 1, -1, 1, Q("7.105 mm")),
    Sketcher.Constraint("DistanceY", 5, 2, -1, 1, Q("3.486 mm")),
    Sketcher.Constraint("DistanceY", 6, 1, -1, 1, Q("3.388 mm")),
    Sketcher.Constraint("DistanceY", 7, 2, -1, 1, Q("3.738 mm")),
    Sketcher.Constraint("DistanceY", 10, 2, -1, 1, Q("3.388 mm")),
    Sketcher.Constraint("DistanceY", 11, 1, -1, 1, Q("3.486 mm")),
    Sketcher.Constraint("DistanceY", 12, 2, -1, 1, Q("7.105 mm")),
    Sketcher.Constraint("DistanceX", -1, 1, 25, 1, Q("7.105 mm")),
    Sketcher.Constraint("DistanceX", -1, 1, 26, 2, Q("3.486 mm")),
    Sketcher.Constraint("DistanceX", -1, 1, 27, 1, Q("3.388 mm")),
    Sketcher.Constraint("DistanceX", -1, 1, 28, 2, Q("3.738 mm")),
    Sketcher.Constraint("DistanceX", -1, 1, 31, 2, Q("3.388 mm")),
    Sketcher.Constraint("DistanceX", -1, 1, 32, 1, Q("3.486 mm")),
    Sketcher.Constraint("DistanceX", -1, 1, 33, 2, Q("7.105 mm")),
    Sketcher.Constraint("DistanceY", -1, 1, 46, 1, Q("7.105 mm")),
    Sketcher.Constraint("DistanceY", -1, 1, 47, 2, Q("3.486 mm")),
    Sketcher.Constraint("DistanceY", -1, 1, 48, 1, Q("3.388 mm")),
    Sketcher.Constraint("DistanceY", -1, 1, 49, 2, Q("3.738 mm")),
    Sketcher.Constraint("DistanceY", -1, 1, 52, 2, Q("3.388 mm")),
    Sketcher.Constraint("DistanceY", -1, 1, 53, 1, Q("3.486 mm")),
    Sketcher.Constraint("DistanceY", -1, 1, 54, 2, Q("7.105 mm")),
    Sketcher.Constraint("DistanceX", 67, 1, -1, 1, Q("7.105 mm")),
    Sketcher.Constraint("DistanceX", 68, 2, -1, 1, Q("3.486 mm")),
    Sketcher.Constraint("DistanceX", 69, 1, -1, 1, Q("3.388 mm")),
    Sketcher.Constraint("DistanceX", 70, 2, -1, 1, Q("3.738 mm")),
    Sketcher.Constraint("DistanceX", 73, 2, -1, 1, Q("3.388 mm")),
    Sketcher.Constraint("DistanceX", 74, 1, -1, 1, Q("3.486 mm")),
    Sketcher.Constraint("DistanceX", 75, 2, -1, 1, Q("7.105 mm")),
])
sketch1.setExpression("Constraints[133]", "Params.sketch1_diameter")
sketch1.setExpression("Constraints[134]", "Params.sketch1_radius")
sketch1.setExpression("Constraints[135]", "Params.sketch1_radius2")
sketch1.setExpression("Constraints[136]", "Params.sketch1_radius3")
sketch1.setExpression("Constraints[137]", "Params.sketch1_radius4")
pad1 = body.newObject("PartDesign::Pad", "Pad")
pad1.Profile = sketch1
pad1.setExpression("Length", "Params.pad1_length")

doc.recompute()
